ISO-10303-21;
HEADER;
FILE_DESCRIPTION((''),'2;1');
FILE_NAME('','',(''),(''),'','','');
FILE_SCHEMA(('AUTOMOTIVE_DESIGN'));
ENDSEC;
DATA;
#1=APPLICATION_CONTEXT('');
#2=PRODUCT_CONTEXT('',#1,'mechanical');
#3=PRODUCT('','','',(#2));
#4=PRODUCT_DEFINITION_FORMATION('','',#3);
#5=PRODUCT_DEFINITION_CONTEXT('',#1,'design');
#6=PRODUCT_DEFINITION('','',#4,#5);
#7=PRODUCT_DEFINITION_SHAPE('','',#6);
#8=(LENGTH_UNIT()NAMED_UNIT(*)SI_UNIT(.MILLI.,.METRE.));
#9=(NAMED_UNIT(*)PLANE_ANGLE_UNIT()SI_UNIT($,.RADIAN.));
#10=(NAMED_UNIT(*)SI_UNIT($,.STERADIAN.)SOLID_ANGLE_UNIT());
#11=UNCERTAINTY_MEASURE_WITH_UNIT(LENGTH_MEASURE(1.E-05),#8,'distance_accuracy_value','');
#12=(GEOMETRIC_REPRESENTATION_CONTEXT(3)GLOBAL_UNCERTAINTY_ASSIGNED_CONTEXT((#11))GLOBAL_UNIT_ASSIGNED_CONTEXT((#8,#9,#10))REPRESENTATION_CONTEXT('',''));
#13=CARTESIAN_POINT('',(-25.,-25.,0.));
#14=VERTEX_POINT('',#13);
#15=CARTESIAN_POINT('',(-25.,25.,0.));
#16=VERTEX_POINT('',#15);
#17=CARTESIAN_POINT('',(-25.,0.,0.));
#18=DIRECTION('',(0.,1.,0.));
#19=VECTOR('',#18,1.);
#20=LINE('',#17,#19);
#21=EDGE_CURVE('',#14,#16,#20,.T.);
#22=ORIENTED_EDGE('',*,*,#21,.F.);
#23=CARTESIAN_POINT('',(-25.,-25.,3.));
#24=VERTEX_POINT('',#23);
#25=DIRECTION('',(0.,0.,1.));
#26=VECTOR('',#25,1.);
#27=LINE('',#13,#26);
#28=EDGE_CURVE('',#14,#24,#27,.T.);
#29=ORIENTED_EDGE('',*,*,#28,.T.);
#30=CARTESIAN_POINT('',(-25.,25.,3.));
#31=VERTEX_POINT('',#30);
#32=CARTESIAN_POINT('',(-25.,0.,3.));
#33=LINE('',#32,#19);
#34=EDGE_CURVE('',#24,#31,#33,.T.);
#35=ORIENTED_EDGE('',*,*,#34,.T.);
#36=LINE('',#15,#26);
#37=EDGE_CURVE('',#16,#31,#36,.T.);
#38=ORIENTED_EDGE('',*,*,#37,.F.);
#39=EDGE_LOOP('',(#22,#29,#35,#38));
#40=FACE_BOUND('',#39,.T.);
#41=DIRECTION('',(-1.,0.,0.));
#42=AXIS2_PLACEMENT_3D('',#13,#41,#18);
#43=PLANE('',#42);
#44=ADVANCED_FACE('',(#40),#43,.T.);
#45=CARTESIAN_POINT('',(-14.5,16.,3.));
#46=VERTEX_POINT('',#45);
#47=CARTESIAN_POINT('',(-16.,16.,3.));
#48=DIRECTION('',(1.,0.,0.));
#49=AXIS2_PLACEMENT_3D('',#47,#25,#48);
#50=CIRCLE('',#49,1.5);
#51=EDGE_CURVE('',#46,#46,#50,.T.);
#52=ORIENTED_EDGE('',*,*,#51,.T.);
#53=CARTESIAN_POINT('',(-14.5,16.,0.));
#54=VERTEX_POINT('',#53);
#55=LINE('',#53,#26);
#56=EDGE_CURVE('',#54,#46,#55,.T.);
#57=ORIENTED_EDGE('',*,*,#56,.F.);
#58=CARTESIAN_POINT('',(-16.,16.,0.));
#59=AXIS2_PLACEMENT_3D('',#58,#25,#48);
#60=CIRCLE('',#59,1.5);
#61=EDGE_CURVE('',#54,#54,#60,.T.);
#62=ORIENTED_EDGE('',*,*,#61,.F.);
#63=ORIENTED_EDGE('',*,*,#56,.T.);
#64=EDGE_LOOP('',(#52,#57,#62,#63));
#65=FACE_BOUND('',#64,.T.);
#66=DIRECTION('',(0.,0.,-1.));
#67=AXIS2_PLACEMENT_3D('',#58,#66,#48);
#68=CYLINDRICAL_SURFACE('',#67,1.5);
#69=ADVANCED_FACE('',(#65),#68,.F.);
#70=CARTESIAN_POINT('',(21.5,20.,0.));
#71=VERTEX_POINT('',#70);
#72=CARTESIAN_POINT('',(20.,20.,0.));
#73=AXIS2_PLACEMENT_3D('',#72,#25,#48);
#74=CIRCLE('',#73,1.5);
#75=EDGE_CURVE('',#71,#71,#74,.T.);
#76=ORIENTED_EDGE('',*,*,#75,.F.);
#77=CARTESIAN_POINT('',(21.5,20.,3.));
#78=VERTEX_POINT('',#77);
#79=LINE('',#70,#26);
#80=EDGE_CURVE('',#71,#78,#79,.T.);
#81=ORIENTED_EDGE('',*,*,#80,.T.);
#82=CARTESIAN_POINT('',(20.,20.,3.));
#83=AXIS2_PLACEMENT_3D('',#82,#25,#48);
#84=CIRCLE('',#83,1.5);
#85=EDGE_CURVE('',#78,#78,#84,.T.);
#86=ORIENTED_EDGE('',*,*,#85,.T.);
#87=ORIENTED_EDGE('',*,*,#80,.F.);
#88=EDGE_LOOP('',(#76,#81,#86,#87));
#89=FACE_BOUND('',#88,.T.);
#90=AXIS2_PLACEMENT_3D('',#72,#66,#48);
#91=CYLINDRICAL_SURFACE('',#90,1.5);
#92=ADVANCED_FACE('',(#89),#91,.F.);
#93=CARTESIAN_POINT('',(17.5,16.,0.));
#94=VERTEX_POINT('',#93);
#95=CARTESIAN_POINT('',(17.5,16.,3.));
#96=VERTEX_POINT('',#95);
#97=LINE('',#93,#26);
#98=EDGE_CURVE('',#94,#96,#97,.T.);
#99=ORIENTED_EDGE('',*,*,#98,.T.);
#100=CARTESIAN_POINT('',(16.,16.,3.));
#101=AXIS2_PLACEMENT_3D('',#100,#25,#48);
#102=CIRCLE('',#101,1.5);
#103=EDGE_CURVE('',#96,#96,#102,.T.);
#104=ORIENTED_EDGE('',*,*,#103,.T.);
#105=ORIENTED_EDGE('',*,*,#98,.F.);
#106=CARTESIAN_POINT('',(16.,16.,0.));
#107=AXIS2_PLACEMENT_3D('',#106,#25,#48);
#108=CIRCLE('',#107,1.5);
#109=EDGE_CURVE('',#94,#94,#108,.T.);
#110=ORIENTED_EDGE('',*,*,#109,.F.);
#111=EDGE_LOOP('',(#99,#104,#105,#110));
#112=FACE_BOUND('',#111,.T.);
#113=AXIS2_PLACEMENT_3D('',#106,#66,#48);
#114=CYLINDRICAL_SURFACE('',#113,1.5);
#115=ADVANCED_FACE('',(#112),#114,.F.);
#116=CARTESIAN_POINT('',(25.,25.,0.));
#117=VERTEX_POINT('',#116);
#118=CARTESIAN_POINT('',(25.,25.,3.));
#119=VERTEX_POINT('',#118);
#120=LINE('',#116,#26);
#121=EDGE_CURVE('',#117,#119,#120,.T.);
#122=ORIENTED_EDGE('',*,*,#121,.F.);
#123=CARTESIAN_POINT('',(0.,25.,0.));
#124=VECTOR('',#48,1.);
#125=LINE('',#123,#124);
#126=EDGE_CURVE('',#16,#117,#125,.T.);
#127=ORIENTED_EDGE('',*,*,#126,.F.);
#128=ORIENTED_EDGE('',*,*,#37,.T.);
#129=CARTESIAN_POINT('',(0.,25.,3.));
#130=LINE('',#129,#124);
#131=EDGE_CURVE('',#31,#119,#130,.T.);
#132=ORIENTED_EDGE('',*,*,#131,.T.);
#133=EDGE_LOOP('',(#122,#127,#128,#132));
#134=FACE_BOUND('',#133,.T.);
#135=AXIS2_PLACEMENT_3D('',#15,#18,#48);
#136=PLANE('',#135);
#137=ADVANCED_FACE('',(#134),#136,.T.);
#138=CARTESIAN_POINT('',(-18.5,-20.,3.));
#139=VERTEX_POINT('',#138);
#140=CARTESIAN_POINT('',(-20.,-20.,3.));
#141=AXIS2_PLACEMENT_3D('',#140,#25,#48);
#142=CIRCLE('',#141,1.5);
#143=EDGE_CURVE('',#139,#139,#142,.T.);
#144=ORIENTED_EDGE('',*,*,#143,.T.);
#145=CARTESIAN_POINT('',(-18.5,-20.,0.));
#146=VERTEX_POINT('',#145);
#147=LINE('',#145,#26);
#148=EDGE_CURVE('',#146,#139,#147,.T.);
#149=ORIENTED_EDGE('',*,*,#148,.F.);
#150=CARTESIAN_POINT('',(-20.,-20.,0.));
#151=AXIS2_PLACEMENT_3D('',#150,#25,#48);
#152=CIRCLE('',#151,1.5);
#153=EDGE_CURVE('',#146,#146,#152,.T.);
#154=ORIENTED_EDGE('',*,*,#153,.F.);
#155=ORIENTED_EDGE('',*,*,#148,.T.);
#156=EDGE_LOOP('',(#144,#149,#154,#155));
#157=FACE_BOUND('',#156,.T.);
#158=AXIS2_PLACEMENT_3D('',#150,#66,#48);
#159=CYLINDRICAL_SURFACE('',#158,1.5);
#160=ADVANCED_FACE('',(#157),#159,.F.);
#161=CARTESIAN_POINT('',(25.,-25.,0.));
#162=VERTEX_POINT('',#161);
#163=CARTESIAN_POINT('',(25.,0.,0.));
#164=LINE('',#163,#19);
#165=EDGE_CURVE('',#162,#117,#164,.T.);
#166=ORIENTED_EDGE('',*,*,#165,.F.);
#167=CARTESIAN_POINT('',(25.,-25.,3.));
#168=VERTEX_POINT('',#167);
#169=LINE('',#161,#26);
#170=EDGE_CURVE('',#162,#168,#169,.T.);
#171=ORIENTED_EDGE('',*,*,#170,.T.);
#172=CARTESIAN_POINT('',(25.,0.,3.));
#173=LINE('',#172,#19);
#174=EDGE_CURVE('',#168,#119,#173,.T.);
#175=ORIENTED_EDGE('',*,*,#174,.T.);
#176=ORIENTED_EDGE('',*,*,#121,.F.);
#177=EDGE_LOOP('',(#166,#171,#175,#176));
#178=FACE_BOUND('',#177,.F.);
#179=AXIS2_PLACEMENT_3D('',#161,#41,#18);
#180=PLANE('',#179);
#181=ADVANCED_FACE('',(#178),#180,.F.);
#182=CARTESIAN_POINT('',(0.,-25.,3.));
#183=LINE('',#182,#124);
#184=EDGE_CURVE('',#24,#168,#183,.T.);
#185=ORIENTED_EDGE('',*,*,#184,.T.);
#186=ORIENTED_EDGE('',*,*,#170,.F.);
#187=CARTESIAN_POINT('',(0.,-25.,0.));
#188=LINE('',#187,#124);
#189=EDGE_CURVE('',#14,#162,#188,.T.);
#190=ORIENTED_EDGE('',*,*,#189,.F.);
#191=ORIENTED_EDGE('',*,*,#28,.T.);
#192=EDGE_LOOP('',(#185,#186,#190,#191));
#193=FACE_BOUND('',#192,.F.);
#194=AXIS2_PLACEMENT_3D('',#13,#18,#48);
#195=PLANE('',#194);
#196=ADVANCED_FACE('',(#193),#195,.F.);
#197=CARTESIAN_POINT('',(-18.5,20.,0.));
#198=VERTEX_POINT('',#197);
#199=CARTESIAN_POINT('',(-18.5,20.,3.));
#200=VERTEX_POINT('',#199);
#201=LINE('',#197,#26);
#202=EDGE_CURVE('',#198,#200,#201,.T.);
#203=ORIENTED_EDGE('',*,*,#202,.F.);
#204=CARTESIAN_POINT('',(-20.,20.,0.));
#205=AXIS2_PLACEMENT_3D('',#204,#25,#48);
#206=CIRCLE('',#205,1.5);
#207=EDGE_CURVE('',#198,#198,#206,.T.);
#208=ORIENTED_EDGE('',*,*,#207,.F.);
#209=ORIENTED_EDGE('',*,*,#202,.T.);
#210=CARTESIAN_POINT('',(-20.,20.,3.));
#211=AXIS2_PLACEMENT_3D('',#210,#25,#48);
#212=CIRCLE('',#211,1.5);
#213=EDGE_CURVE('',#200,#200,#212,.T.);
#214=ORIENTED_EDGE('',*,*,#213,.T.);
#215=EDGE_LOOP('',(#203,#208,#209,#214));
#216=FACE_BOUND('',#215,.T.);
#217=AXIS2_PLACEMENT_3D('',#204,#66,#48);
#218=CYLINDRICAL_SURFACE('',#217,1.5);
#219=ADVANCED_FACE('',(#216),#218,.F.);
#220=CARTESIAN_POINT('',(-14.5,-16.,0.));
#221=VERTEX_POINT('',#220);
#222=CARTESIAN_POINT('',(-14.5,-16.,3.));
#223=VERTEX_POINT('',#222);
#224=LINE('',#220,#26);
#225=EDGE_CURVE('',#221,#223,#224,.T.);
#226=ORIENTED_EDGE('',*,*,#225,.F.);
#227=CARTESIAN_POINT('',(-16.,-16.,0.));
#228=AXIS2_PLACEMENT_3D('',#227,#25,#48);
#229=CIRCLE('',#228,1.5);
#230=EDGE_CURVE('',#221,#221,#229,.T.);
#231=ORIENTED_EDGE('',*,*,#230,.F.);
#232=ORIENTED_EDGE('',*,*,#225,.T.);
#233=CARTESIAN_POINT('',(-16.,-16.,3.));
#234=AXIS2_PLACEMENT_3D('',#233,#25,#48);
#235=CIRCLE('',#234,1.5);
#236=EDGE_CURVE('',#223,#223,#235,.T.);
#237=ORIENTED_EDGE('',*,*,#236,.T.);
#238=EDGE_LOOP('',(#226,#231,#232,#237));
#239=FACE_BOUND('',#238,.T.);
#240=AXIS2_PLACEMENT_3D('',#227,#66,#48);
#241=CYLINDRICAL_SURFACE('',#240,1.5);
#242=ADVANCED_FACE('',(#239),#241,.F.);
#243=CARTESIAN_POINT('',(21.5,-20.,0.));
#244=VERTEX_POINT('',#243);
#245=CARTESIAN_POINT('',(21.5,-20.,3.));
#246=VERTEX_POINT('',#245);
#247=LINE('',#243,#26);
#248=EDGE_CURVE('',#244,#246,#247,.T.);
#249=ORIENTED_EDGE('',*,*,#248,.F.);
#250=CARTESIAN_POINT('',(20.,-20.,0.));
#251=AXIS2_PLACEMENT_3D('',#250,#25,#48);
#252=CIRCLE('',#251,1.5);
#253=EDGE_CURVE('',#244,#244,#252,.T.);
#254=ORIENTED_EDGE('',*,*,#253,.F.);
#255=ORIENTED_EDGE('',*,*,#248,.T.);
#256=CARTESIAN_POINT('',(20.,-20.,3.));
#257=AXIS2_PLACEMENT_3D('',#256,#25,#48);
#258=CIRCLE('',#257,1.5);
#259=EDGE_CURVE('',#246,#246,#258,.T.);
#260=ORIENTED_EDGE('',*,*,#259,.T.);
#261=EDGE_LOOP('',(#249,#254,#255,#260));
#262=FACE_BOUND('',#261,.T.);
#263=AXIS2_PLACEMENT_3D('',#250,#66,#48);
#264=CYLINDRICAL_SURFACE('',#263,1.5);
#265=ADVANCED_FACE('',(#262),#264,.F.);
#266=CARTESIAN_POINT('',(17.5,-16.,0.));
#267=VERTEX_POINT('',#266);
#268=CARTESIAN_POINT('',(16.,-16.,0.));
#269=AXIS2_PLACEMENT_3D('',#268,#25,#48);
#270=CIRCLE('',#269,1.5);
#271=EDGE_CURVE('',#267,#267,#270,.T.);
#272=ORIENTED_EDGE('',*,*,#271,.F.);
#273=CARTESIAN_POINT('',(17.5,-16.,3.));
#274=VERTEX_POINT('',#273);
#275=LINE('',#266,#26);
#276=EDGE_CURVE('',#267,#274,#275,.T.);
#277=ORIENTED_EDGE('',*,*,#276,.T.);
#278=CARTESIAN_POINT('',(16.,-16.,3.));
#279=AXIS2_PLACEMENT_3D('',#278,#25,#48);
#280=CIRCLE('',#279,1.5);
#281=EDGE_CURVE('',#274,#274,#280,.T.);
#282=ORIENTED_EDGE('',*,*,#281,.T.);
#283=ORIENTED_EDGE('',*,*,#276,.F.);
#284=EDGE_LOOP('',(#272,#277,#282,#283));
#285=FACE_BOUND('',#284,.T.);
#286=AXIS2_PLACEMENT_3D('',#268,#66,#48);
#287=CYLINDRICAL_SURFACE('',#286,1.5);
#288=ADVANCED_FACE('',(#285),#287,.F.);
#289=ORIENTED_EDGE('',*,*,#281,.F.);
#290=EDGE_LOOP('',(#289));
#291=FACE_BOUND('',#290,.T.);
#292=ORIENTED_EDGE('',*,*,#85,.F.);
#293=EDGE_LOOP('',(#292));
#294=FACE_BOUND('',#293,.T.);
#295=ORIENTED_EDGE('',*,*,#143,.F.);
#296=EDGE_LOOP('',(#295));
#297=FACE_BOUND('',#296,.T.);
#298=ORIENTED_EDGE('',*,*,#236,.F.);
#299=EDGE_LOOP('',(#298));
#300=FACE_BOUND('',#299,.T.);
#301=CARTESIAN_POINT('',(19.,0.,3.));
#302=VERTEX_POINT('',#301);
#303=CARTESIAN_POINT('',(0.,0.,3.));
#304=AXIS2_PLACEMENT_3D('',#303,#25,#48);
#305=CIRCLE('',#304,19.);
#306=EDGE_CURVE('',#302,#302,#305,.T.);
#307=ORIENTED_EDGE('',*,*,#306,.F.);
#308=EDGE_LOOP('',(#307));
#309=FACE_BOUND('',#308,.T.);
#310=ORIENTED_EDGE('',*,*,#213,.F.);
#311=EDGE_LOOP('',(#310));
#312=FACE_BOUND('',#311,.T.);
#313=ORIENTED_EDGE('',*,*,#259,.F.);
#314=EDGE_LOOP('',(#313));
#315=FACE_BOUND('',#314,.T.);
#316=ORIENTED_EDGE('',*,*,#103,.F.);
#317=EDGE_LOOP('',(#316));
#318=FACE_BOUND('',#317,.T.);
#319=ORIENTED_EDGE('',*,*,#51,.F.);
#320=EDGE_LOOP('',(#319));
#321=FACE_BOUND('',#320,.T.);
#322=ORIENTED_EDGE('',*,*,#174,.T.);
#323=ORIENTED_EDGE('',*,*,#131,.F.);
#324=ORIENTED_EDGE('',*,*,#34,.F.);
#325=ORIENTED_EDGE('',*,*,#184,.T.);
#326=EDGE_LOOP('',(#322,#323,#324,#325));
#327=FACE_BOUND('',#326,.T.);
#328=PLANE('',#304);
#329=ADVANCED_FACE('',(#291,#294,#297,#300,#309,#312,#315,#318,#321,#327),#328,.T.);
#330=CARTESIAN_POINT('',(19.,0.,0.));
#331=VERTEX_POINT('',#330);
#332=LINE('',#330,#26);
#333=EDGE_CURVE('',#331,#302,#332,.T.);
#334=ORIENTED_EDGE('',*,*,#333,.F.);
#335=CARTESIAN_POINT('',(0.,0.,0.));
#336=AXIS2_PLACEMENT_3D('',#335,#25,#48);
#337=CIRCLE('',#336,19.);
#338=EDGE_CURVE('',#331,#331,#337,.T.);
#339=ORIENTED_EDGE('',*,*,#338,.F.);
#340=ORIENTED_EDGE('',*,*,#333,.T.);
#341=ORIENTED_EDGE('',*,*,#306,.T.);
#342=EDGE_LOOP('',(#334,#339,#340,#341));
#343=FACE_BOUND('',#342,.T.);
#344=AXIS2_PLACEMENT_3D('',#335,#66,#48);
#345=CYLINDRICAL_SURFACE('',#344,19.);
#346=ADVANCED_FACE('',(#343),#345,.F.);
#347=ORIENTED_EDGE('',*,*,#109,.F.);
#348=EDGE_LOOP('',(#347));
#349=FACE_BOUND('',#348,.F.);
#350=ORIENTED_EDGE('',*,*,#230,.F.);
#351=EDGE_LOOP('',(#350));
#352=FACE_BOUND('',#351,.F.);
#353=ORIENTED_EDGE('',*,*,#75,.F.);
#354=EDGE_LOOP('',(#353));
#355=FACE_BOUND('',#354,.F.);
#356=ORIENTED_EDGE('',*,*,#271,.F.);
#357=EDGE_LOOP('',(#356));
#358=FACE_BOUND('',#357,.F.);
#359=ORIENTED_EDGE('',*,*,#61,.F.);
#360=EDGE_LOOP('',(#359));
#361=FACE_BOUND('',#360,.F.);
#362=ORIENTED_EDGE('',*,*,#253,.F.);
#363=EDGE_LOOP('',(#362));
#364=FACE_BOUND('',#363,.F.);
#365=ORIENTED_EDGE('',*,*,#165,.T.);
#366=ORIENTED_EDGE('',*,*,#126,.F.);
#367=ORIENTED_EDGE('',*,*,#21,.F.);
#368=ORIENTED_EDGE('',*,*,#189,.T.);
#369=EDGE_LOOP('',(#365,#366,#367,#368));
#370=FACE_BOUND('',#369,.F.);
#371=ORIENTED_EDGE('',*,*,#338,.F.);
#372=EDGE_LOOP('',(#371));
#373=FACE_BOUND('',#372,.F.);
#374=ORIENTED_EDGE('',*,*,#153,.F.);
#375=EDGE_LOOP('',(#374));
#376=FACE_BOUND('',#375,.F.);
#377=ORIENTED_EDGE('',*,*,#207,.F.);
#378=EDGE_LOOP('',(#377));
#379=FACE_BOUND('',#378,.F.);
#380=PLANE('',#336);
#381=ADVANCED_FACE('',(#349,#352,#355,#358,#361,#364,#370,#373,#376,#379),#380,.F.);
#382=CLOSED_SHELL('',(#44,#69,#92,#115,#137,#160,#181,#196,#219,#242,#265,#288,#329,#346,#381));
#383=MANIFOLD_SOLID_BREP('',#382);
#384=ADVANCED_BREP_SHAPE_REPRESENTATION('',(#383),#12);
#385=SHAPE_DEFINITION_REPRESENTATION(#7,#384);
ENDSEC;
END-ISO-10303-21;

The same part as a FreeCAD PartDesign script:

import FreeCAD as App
import Part
import Sketcher
Q = App.Units.Quantity


def add_polygon(sketch, points):
    """Adds a closed chain of lines whose ends are joined by coincident constraints."""
    first, n = sketch.GeometryCount, len(points)
    for a, b in zip(points, points[1:] + points[:1]):
        sketch.addGeometry(Part.LineSegment(App.Vector(*a, 0), App.Vector(*b, 0)), False)
    for i in range(n):
        sketch.addConstraint(Sketcher.Constraint("Coincident", first + i, 2, first + (i + 1) % n, 1))

doc = App.newDocument("Part")
body = doc.addObject("PartDesign::Body", "Body")

# Sketch on XY plane
sketch1 = body.newObject("Sketcher::SketchObject", "Sketch")
sketch1.AttachmentSupport = (doc.getObject("XY_Plane"), [""])
sketch1.MapMode = "FlatFace"
add_polygon(sketch1, [(-25, 25), (-25, -25), (25, -25), (25, 25)])  # lines 0-3
sketch1.addGeometry(Part.Circle(App.Vector(-20, -20, 0), App.Vector(0, 0, 1), 1.5), False)  # 4
sketch1.addGeometry(Part.Circle(App.Vector(-16, -16, 0), App.Vector(0, 0, 1), 1.5), False)  # 5
sketch1.addGeometry(Part.Circle(App.Vector(20, -20, 0), App.Vector(0, 0, 1), 1.5), False)  # 6
sketch1.addGeometry(Part.Circle(App.Vector(16, -16, 0), App.Vector(0, 0, 1), 1.5), False)  # 7
sketch1.addGeometry(Part.Circle(App.Vector(-16, 16, 0), App.Vector(0, 0, 1), 1.5), False)  # 8
sketch1.addGeometry(Part.Circle(App.Vector(-20, 20, 0), App.Vector(0, 0, 1), 1.5), False)  # 9
sketch1.addGeometry(Part.Circle(App.Vector(0, 0, 0), App.Vector(0, 0, 1), 19), False)  # 10
sketch1.addGeometry(Part.Circle(App.Vector(16, 16, 0), App.Vector(0, 0, 1), 1.5), False)  # 11
sketch1.addGeometry(Part.Circle(App.Vector(20, 20, 0), App.Vector(0, 0, 1), 1.5), False)  # 12
sketch1.addConstraint(Sketcher.Constraint("Vertical", 0))
sketch1.addConstraint(Sketcher.Constraint("Horizontal", 1))
sketch1.addConstraint(Sketcher.Constraint("Vertical", 2))
sketch1.addConstraint(Sketcher.Constraint("Horizontal", 3))
sketch1.addConstraint(Sketcher.Constraint("Coincident", 10, 3, -1, 1))
sketch1.addConstraint(Sketcher.Constraint("Equal", 4, 5))
sketch1.addConstraint(Sketcher.Constraint("Equal", 5, 6))
sketch1.addConstraint(Sketcher.Constraint("Equal", 6, 7))
sketch1.addConstraint(Sketcher.Constraint("Equal", 7, 8))
sketch1.addConstraint(Sketcher.Constraint("Equal", 8, 9))
sketch1.addConstraint(Sketcher.Constraint("Equal", 9, 11))
sketch1.addConstraint(Sketcher.Constraint("Equal", 11, 12))
sketch1.addConstraint(Sketcher.Constraint("Symmetric", 7, 3, 8, 3, -1, 1))
sketch1.addConstraint(Sketcher.Constraint("Symmetric", 6, 3, 9, 3, -1, 1))
sketch1.addConstraint(Sketcher.Constraint("Symmetric", 5, 3, 11, 3, -1, 1))
sketch1.addConstraint(Sketcher.Constraint("Symmetric", 4, 3, 12, 3, -1, 1))
sketch1.addConstraint(Sketcher.Constraint("Symmetric", 0, 2, 2, 2, -1, 1))
sketch1.addConstraint(Sketcher.Constraint("Symmetric", 4, 3, 6, 3, -2))
sketch1.addConstraint(Sketcher.Constraint("Symmetric", 5, 3, 7, 3, -2))
sketch1.addConstraint(Sketcher.Constraint("Equal", 3, 0))
sketch1.addConstraint(Sketcher.Constraint("Diameter", 4, Q("3 mm")))
sketch1.addConstraint(Sketcher.Constraint("Diameter", 10, Q("38 mm")))
sketch1.addConstraint(Sketcher.Constraint("DistanceX", 1, 1, 1, 2, Q("50 mm")))
sketch1.addConstraint(Sketcher.Constraint("DistanceX", 4, 3, -1, 1, Q("20 mm")))
sketch1.addConstraint(Sketcher.Constraint("DistanceY", 4, 3, -1, 1, Q("20 mm")))
sketch1.addConstraint(Sketcher.Constraint("DistanceX", 5, 3, -1, 1, Q("16 mm")))
sketch1.addConstraint(Sketcher.Constraint("DistanceY", 5, 3, -1, 1, Q("16 mm")))
pad1 = body.newObject("PartDesign::Pad", "Pad")
pad1.Profile = sketch1
pad1.Length = 3

doc.recompute()
